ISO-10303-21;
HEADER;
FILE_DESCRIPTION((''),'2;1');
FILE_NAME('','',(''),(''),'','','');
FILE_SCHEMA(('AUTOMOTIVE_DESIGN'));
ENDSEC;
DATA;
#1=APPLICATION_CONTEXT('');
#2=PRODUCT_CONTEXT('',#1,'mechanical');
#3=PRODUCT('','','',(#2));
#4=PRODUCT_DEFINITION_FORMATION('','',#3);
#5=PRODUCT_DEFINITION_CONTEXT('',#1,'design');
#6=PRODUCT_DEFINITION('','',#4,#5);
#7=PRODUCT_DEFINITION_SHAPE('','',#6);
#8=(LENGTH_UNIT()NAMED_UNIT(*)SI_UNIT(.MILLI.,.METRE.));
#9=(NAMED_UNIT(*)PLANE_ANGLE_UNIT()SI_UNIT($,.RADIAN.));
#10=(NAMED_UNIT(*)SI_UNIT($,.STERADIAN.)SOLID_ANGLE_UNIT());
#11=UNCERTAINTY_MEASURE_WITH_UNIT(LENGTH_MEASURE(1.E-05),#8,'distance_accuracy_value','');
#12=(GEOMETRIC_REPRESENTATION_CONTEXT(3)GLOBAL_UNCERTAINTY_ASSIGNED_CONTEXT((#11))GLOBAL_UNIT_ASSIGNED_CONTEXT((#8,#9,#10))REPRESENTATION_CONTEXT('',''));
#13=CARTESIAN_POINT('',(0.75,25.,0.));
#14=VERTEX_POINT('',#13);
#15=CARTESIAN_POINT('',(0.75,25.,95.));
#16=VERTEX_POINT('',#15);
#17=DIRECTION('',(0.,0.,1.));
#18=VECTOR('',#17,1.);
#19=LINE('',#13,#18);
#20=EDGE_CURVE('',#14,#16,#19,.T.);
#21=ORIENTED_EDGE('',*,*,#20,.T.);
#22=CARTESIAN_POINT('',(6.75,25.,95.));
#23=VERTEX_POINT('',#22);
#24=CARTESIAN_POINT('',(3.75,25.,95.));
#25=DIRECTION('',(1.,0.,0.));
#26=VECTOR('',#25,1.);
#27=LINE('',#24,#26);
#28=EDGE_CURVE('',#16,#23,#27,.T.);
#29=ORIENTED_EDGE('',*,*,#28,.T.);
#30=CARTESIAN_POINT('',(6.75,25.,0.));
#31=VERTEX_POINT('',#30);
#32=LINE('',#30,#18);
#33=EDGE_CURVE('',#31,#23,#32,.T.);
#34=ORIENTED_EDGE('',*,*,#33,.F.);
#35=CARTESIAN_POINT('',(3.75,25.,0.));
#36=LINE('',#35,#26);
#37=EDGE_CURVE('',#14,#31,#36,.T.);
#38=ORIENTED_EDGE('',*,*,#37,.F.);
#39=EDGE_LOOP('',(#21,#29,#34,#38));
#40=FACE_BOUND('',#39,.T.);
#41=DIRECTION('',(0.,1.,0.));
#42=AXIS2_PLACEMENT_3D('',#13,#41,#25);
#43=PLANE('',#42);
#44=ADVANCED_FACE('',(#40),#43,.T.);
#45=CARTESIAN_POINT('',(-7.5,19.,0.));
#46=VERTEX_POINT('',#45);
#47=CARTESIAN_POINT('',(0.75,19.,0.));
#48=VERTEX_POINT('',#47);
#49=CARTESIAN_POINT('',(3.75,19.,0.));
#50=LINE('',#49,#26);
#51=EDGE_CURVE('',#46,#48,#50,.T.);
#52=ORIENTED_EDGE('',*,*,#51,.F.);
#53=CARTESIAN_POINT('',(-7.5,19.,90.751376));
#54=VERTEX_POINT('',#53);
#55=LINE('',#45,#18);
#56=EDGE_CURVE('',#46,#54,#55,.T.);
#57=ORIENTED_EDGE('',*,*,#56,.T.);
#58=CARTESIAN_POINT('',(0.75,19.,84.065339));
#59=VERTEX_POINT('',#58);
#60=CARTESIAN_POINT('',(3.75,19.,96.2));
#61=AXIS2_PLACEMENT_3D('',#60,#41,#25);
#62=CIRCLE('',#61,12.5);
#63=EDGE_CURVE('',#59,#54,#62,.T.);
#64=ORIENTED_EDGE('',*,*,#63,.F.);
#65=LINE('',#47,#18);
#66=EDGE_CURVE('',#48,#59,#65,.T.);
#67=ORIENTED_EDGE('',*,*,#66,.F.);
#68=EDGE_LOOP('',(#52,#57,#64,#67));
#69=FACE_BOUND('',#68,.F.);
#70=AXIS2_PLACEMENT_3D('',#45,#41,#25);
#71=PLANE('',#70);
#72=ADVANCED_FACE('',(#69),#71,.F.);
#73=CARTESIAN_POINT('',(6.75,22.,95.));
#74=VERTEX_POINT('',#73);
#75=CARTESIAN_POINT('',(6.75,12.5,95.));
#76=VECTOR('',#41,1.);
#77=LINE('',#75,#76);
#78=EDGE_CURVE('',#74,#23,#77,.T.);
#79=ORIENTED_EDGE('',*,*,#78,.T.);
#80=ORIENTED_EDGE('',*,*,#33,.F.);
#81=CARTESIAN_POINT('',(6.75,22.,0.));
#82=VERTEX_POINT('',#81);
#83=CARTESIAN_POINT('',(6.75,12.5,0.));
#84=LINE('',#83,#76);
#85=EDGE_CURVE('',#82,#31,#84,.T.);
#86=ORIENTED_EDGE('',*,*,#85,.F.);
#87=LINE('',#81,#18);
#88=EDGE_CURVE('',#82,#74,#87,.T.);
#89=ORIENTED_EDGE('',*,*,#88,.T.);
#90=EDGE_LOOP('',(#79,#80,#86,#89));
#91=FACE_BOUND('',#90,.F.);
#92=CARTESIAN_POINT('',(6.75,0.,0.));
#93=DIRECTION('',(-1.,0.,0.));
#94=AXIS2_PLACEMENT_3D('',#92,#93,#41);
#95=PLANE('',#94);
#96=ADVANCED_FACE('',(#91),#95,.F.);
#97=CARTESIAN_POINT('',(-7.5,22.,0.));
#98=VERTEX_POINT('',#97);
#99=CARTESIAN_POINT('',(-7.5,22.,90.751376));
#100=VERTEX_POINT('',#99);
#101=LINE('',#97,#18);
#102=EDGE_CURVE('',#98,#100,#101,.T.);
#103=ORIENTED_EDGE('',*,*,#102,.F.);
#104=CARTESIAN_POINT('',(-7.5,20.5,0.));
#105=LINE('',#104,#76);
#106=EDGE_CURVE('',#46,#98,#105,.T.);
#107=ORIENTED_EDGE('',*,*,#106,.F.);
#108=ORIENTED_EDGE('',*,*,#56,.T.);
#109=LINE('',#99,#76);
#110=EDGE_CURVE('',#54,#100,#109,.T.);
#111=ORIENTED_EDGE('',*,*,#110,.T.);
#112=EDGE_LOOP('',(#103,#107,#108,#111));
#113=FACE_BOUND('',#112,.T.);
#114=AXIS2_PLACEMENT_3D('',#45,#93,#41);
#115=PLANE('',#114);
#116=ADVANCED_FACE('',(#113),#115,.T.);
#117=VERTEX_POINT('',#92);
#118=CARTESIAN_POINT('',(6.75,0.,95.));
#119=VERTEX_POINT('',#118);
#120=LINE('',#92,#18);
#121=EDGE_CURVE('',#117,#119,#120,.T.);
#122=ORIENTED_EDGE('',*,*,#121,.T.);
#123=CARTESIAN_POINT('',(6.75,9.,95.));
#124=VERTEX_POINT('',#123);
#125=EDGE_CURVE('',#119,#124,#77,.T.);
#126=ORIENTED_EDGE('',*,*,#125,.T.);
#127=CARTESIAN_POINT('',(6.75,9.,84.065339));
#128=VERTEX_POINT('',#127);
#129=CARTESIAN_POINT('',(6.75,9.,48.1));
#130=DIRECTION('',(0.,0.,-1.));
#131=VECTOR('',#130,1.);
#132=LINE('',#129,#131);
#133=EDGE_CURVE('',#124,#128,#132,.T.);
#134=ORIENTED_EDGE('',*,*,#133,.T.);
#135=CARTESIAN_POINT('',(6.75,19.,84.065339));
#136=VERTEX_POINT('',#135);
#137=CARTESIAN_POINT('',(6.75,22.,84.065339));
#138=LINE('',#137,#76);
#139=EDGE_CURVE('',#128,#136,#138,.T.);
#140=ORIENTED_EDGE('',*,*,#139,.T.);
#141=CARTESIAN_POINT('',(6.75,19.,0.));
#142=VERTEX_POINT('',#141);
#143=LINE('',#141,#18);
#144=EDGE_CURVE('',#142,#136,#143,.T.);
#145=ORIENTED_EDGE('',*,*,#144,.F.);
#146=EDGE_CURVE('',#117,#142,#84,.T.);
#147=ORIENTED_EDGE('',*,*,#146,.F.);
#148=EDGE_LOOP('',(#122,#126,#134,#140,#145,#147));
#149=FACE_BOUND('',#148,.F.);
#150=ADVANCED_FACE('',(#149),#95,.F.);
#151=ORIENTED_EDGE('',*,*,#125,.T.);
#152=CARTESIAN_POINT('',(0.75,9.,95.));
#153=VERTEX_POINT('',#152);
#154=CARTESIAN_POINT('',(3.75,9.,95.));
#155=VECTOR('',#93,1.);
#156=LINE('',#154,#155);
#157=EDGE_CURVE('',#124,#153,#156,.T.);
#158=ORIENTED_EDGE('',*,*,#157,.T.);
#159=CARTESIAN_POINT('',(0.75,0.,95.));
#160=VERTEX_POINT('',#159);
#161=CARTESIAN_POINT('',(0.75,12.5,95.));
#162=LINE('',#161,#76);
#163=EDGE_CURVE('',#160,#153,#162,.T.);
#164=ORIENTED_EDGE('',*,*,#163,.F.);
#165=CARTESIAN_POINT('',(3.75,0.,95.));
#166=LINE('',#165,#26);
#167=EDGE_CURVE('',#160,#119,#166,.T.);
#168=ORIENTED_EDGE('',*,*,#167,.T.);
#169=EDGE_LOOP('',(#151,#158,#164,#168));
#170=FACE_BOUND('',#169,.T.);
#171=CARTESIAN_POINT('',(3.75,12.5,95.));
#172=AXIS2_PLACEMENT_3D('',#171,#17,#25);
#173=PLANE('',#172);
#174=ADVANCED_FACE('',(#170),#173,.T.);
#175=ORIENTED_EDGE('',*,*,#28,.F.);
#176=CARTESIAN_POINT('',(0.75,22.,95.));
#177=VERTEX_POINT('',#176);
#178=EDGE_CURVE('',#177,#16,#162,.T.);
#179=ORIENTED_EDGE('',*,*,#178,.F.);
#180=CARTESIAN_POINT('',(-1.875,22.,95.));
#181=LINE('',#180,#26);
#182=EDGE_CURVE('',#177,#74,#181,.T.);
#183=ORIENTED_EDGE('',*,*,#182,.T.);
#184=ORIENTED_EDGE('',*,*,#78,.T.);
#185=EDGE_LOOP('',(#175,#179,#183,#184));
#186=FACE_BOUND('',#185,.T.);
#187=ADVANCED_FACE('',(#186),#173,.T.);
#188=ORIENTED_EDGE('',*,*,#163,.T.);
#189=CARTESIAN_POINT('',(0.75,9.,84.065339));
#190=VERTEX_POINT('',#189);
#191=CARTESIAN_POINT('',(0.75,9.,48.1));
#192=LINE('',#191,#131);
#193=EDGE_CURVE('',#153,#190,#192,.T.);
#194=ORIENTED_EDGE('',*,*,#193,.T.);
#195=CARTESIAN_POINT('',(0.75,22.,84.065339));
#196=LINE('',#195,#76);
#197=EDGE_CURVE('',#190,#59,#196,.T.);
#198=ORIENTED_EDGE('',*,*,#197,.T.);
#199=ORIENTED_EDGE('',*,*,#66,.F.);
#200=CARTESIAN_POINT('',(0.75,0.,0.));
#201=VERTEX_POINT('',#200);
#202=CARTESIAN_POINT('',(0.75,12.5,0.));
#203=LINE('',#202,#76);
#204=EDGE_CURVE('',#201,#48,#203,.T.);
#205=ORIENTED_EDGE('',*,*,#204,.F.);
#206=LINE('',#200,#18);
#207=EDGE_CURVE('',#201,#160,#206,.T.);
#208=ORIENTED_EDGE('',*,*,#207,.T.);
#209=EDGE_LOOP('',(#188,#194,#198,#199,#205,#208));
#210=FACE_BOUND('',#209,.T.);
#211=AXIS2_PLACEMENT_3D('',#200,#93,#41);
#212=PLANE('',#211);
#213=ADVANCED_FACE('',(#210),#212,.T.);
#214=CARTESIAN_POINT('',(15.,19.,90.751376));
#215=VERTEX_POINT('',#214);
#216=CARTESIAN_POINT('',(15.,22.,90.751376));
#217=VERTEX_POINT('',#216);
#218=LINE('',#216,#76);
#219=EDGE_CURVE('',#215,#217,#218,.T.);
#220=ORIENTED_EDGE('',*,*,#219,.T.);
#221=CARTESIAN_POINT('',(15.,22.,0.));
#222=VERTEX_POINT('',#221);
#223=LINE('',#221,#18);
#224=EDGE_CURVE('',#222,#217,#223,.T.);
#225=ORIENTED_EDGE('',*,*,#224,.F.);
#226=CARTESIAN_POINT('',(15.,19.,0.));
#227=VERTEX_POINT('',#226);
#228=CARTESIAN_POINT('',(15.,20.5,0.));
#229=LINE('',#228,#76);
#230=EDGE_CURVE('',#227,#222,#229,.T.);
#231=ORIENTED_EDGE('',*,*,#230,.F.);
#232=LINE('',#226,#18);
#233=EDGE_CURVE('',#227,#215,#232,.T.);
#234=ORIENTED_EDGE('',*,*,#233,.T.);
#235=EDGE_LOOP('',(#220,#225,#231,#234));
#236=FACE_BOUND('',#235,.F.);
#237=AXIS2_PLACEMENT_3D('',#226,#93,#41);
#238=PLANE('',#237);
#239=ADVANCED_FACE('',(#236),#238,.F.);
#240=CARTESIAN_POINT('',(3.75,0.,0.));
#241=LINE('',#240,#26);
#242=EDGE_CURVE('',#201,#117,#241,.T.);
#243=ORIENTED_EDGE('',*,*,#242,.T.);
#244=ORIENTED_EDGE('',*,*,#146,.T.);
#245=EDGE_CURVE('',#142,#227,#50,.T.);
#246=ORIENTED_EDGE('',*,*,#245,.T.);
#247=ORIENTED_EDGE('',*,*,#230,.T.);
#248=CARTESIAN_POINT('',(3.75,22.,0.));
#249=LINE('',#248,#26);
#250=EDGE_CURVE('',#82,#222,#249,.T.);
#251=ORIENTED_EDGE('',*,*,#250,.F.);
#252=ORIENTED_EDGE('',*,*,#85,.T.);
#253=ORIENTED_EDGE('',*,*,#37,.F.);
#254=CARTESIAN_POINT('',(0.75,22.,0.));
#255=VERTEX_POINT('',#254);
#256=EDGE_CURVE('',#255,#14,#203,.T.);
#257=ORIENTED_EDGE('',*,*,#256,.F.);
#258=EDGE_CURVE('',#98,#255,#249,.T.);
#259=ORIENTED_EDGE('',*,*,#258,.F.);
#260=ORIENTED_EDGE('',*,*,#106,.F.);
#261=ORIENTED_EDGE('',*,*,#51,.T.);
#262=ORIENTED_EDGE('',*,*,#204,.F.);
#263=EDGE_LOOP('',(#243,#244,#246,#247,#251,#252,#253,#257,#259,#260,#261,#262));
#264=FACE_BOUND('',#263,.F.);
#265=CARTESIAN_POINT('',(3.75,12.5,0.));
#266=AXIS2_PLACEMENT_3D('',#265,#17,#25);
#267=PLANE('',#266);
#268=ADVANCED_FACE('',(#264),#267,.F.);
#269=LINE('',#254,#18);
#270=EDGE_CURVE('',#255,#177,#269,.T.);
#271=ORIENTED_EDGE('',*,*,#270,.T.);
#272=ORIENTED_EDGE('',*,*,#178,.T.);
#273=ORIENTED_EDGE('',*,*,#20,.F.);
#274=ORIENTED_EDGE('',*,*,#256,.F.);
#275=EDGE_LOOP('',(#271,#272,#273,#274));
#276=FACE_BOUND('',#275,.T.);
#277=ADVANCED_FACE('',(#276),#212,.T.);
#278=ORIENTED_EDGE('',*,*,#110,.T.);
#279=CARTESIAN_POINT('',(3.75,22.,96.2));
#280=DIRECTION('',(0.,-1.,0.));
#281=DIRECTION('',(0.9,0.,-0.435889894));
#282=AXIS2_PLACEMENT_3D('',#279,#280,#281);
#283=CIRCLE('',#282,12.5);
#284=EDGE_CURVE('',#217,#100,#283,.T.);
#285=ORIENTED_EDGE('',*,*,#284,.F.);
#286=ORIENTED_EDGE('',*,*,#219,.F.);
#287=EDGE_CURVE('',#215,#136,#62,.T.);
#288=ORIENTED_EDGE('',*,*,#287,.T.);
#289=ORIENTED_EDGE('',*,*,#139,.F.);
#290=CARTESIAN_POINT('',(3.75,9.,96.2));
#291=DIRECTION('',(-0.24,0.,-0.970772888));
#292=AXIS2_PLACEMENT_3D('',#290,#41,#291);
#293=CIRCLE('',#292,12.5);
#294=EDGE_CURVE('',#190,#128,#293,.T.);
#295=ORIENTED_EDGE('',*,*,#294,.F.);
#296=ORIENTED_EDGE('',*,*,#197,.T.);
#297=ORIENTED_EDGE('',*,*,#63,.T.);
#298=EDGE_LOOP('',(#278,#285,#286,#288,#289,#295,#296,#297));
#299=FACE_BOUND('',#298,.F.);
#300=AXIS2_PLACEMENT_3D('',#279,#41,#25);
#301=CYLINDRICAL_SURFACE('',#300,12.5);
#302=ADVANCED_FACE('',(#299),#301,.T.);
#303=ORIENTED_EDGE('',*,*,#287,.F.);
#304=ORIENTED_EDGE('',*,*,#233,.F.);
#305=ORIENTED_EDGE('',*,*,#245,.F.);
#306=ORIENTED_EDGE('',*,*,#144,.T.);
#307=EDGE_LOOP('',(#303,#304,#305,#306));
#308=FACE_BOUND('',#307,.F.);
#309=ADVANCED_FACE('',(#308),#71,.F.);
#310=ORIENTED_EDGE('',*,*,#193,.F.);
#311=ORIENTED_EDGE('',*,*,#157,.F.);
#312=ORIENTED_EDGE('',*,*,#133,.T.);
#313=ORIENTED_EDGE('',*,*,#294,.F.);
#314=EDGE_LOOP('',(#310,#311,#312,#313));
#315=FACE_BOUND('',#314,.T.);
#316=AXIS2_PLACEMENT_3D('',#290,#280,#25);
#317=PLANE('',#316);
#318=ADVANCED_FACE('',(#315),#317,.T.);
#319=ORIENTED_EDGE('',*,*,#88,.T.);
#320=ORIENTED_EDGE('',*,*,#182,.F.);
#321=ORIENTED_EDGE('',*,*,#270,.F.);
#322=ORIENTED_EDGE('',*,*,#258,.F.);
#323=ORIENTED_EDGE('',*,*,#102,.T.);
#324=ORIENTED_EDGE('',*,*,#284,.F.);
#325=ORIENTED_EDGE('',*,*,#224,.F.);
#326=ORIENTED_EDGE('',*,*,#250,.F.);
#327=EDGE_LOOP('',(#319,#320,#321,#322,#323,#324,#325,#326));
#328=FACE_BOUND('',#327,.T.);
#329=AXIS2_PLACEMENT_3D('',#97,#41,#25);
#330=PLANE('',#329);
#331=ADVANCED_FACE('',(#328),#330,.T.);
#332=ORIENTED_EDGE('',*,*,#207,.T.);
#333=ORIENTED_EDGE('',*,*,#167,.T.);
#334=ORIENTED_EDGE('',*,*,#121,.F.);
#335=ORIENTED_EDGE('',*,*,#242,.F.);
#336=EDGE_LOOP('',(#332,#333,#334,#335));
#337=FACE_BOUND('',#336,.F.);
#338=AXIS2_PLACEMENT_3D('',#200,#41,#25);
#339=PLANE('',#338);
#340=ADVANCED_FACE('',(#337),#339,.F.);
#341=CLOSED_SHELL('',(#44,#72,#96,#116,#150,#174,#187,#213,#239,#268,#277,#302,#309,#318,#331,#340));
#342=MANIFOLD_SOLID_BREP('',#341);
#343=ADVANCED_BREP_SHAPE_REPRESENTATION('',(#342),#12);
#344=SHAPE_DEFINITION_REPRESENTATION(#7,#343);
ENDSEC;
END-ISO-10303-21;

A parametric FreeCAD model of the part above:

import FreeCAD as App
import Part
import Sketcher
from FreeCAD import Vector
Q = App.Units.Quantity


def add_polygon(sketch, points):
    """Adds a closed chain of lines whose ends are joined by coincident constraints."""
    first, n = sketch.GeometryCount, len(points)
    for a, b in zip(points, points[1:] + points[:1]):
        sketch.addGeometry(Part.LineSegment(App.Vector(*a, 0), App.Vector(*b, 0)), False)
    for i in range(n):
        sketch.addConstraint(Sketcher.Constraint("Coincident", first + i, 2, first + (i + 1) % n, 1))

doc = App.newDocument("Part")
body = doc.addObject("PartDesign::Body", "Body")

sketch1 = doc.addObject("Sketcher::SketchObject", "Sketch")
body.addObject(sketch1)
sketch1.AttachmentSupport = (doc.XY_Plane, [""])
sketch1.MapMode = "FlatFace"
add_polygon(sketch1, [(-7.5, 22), (-7.5, 19), (15, 19), (15, 22)])
sketch1.addConstraint([
    Sketcher.Constraint("Vertical", 0),
    Sketcher.Constraint("Horizontal", 1),
    Sketcher.Constraint("Vertical", 2),
    Sketcher.Constraint("Horizontal", 3),
    Sketcher.Constraint("DistanceY", 0, 2, 0, 1, Q("3 mm")),
    Sketcher.Constraint("DistanceX", 1, 1, 1, 2, Q("22.5 mm")),
    Sketcher.Constraint("DistanceY", -1, 1, 0, 2, Q("19 mm")),
    Sketcher.Constraint("DistanceX", -1, 1, 1, 2, Q("15 mm")),
])
pad1 = doc.addObject("PartDesign::Pad", "Pad")
body.addObject(pad1)
pad1.Profile = sketch1
pad1.Length = 95
body2 = doc.addObject("PartDesign::Body", "Body001")

sketch2 = doc.addObject("Sketcher::SketchObject", "Sketch001")
body2.addObject(sketch2)
sketch2.AttachmentSupport = (doc.getObject("XY_Plane001"), [""])
sketch2.MapMode = "FlatFace"
add_polygon(sketch2, [(0.75, 25), (0.75, 0), (6.75, 0), (6.75, 25)])
sketch2.addConstraint([
    Sketcher.Constraint("Vertical", 0),
    Sketcher.Constraint("Horizontal", 1),
    Sketcher.Constraint("Vertical", 2),
    Sketcher.Constraint("Horizontal", 3),
    Sketcher.Constraint("PointOnObject", 0, 2, -1),
    Sketcher.Constraint("DistanceX", 1, 1, 1, 2, Q("6 mm")),
    Sketcher.Constraint("DistanceY", 0, 2, 0, 1, Q("25 mm")),
    Sketcher.Constraint("DistanceX", -1, 1, 0, 2, Q("0.75 mm")),
])
pad2 = doc.addObject("PartDesign::Pad", "Pad001")
body2.addObject(pad2)
pad2.Profile = sketch2
pad2.Length = 95
body3 = doc.addObject("PartDesign::Body", "Body002")

sketch3 = doc.addObject("Sketcher::SketchObject", "Sketch002")
body3.addObject(sketch3)
sketch3.AttachmentSupport = (doc.getObject("XY_Plane002"), [""])
sketch3.MapMode = "FlatFace"
sketch3.addGeometry(Part.Circle(Vector(0, 0, 0), Vector(0, 0, 1), 12.5), False)
sketch3.addConstraint([
    Sketcher.Constraint("Coincident", 0, 3, -1, 1),
    Sketcher.Constraint("Diameter", 0, Q("25 mm")),
])
pad3 = doc.addObject("PartDesign::Pad", "Pad002")
body3.addObject(pad3)
pad3.Profile = sketch3
pad3.Length = 13
body4 = doc.addObject("PartDesign::Body", "Body003")
doc.recompute()

body3.Placement = App.Placement(Vector(0, 0, 0), App.Rotation(Vector(1, 0, 0), 90))
boolean = doc.addObject("PartDesign::Boolean", "Boolean")
body4.addObject(boolean)
boolean.Type = "Fuse"
boolean.addObjects([body3])
body5 = doc.addObject("PartDesign::Body", "Body004")
doc.recompute()

body4.Placement = App.Placement(Vector(3.75, 22, 96.2), App.Rotation(Vector(0, 0, 1), 0))
boolean2 = doc.addObject("PartDesign::Boolean", "Boolean001")
body5.addObject(boolean2)
boolean2.Type = "Fuse"
boolean2.addObjects([body4])
doc.recompute()

boolean3 = doc.addObject("PartDesign::Boolean", "Boolean002")
body5.addObject(boolean3)
boolean3.Type = "Fuse"
boolean3.addObjects([body])
doc.recompute()

boolean4 = doc.addObject("PartDesign::Boolean", "Boolean003")
body5.addObject(boolean4)
boolean4.Type = "Fuse"
boolean4.addObjects([body2])

doc.recompute()
